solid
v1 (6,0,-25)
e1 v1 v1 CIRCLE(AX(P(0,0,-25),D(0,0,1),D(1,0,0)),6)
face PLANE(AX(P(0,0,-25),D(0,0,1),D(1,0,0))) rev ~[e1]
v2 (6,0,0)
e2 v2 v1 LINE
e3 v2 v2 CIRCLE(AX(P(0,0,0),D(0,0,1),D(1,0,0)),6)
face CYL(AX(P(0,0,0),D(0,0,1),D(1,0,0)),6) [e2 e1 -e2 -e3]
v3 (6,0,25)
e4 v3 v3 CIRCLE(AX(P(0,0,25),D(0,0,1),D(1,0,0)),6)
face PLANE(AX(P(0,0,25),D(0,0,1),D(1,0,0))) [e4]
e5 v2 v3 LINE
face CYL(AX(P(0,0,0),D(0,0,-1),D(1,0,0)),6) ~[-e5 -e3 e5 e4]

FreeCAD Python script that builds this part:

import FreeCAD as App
import Part
import Sketcher
Q = App.Units.Quantity

doc = App.newDocument("Part")
body = doc.addObject("PartDesign::Body", "Body")

sketch1 = body.newObject("Sketcher::SketchObject", "Sketch")
sketch1.AttachmentSupport = (doc.getObject("XY_Plane"), [""])
sketch1.MapMode = "FlatFace"
sketch1.addGeometry(Part.Circle(App.Vector(0, 0, 0), App.Vector(0, 0, 1), 6), False)
sketch1.addConstraint([
    Sketcher.Constraint("Coincident", 0, 3, -1, 1),
    Sketcher.Constraint("Diameter", 0, Q("12 mm")),
])
pad1 = body.newObject("PartDesign::Pad", "Pad")
pad1.Profile = sketch1
pad1.Length = 50
pad1.Midplane = True

doc.recompute()
